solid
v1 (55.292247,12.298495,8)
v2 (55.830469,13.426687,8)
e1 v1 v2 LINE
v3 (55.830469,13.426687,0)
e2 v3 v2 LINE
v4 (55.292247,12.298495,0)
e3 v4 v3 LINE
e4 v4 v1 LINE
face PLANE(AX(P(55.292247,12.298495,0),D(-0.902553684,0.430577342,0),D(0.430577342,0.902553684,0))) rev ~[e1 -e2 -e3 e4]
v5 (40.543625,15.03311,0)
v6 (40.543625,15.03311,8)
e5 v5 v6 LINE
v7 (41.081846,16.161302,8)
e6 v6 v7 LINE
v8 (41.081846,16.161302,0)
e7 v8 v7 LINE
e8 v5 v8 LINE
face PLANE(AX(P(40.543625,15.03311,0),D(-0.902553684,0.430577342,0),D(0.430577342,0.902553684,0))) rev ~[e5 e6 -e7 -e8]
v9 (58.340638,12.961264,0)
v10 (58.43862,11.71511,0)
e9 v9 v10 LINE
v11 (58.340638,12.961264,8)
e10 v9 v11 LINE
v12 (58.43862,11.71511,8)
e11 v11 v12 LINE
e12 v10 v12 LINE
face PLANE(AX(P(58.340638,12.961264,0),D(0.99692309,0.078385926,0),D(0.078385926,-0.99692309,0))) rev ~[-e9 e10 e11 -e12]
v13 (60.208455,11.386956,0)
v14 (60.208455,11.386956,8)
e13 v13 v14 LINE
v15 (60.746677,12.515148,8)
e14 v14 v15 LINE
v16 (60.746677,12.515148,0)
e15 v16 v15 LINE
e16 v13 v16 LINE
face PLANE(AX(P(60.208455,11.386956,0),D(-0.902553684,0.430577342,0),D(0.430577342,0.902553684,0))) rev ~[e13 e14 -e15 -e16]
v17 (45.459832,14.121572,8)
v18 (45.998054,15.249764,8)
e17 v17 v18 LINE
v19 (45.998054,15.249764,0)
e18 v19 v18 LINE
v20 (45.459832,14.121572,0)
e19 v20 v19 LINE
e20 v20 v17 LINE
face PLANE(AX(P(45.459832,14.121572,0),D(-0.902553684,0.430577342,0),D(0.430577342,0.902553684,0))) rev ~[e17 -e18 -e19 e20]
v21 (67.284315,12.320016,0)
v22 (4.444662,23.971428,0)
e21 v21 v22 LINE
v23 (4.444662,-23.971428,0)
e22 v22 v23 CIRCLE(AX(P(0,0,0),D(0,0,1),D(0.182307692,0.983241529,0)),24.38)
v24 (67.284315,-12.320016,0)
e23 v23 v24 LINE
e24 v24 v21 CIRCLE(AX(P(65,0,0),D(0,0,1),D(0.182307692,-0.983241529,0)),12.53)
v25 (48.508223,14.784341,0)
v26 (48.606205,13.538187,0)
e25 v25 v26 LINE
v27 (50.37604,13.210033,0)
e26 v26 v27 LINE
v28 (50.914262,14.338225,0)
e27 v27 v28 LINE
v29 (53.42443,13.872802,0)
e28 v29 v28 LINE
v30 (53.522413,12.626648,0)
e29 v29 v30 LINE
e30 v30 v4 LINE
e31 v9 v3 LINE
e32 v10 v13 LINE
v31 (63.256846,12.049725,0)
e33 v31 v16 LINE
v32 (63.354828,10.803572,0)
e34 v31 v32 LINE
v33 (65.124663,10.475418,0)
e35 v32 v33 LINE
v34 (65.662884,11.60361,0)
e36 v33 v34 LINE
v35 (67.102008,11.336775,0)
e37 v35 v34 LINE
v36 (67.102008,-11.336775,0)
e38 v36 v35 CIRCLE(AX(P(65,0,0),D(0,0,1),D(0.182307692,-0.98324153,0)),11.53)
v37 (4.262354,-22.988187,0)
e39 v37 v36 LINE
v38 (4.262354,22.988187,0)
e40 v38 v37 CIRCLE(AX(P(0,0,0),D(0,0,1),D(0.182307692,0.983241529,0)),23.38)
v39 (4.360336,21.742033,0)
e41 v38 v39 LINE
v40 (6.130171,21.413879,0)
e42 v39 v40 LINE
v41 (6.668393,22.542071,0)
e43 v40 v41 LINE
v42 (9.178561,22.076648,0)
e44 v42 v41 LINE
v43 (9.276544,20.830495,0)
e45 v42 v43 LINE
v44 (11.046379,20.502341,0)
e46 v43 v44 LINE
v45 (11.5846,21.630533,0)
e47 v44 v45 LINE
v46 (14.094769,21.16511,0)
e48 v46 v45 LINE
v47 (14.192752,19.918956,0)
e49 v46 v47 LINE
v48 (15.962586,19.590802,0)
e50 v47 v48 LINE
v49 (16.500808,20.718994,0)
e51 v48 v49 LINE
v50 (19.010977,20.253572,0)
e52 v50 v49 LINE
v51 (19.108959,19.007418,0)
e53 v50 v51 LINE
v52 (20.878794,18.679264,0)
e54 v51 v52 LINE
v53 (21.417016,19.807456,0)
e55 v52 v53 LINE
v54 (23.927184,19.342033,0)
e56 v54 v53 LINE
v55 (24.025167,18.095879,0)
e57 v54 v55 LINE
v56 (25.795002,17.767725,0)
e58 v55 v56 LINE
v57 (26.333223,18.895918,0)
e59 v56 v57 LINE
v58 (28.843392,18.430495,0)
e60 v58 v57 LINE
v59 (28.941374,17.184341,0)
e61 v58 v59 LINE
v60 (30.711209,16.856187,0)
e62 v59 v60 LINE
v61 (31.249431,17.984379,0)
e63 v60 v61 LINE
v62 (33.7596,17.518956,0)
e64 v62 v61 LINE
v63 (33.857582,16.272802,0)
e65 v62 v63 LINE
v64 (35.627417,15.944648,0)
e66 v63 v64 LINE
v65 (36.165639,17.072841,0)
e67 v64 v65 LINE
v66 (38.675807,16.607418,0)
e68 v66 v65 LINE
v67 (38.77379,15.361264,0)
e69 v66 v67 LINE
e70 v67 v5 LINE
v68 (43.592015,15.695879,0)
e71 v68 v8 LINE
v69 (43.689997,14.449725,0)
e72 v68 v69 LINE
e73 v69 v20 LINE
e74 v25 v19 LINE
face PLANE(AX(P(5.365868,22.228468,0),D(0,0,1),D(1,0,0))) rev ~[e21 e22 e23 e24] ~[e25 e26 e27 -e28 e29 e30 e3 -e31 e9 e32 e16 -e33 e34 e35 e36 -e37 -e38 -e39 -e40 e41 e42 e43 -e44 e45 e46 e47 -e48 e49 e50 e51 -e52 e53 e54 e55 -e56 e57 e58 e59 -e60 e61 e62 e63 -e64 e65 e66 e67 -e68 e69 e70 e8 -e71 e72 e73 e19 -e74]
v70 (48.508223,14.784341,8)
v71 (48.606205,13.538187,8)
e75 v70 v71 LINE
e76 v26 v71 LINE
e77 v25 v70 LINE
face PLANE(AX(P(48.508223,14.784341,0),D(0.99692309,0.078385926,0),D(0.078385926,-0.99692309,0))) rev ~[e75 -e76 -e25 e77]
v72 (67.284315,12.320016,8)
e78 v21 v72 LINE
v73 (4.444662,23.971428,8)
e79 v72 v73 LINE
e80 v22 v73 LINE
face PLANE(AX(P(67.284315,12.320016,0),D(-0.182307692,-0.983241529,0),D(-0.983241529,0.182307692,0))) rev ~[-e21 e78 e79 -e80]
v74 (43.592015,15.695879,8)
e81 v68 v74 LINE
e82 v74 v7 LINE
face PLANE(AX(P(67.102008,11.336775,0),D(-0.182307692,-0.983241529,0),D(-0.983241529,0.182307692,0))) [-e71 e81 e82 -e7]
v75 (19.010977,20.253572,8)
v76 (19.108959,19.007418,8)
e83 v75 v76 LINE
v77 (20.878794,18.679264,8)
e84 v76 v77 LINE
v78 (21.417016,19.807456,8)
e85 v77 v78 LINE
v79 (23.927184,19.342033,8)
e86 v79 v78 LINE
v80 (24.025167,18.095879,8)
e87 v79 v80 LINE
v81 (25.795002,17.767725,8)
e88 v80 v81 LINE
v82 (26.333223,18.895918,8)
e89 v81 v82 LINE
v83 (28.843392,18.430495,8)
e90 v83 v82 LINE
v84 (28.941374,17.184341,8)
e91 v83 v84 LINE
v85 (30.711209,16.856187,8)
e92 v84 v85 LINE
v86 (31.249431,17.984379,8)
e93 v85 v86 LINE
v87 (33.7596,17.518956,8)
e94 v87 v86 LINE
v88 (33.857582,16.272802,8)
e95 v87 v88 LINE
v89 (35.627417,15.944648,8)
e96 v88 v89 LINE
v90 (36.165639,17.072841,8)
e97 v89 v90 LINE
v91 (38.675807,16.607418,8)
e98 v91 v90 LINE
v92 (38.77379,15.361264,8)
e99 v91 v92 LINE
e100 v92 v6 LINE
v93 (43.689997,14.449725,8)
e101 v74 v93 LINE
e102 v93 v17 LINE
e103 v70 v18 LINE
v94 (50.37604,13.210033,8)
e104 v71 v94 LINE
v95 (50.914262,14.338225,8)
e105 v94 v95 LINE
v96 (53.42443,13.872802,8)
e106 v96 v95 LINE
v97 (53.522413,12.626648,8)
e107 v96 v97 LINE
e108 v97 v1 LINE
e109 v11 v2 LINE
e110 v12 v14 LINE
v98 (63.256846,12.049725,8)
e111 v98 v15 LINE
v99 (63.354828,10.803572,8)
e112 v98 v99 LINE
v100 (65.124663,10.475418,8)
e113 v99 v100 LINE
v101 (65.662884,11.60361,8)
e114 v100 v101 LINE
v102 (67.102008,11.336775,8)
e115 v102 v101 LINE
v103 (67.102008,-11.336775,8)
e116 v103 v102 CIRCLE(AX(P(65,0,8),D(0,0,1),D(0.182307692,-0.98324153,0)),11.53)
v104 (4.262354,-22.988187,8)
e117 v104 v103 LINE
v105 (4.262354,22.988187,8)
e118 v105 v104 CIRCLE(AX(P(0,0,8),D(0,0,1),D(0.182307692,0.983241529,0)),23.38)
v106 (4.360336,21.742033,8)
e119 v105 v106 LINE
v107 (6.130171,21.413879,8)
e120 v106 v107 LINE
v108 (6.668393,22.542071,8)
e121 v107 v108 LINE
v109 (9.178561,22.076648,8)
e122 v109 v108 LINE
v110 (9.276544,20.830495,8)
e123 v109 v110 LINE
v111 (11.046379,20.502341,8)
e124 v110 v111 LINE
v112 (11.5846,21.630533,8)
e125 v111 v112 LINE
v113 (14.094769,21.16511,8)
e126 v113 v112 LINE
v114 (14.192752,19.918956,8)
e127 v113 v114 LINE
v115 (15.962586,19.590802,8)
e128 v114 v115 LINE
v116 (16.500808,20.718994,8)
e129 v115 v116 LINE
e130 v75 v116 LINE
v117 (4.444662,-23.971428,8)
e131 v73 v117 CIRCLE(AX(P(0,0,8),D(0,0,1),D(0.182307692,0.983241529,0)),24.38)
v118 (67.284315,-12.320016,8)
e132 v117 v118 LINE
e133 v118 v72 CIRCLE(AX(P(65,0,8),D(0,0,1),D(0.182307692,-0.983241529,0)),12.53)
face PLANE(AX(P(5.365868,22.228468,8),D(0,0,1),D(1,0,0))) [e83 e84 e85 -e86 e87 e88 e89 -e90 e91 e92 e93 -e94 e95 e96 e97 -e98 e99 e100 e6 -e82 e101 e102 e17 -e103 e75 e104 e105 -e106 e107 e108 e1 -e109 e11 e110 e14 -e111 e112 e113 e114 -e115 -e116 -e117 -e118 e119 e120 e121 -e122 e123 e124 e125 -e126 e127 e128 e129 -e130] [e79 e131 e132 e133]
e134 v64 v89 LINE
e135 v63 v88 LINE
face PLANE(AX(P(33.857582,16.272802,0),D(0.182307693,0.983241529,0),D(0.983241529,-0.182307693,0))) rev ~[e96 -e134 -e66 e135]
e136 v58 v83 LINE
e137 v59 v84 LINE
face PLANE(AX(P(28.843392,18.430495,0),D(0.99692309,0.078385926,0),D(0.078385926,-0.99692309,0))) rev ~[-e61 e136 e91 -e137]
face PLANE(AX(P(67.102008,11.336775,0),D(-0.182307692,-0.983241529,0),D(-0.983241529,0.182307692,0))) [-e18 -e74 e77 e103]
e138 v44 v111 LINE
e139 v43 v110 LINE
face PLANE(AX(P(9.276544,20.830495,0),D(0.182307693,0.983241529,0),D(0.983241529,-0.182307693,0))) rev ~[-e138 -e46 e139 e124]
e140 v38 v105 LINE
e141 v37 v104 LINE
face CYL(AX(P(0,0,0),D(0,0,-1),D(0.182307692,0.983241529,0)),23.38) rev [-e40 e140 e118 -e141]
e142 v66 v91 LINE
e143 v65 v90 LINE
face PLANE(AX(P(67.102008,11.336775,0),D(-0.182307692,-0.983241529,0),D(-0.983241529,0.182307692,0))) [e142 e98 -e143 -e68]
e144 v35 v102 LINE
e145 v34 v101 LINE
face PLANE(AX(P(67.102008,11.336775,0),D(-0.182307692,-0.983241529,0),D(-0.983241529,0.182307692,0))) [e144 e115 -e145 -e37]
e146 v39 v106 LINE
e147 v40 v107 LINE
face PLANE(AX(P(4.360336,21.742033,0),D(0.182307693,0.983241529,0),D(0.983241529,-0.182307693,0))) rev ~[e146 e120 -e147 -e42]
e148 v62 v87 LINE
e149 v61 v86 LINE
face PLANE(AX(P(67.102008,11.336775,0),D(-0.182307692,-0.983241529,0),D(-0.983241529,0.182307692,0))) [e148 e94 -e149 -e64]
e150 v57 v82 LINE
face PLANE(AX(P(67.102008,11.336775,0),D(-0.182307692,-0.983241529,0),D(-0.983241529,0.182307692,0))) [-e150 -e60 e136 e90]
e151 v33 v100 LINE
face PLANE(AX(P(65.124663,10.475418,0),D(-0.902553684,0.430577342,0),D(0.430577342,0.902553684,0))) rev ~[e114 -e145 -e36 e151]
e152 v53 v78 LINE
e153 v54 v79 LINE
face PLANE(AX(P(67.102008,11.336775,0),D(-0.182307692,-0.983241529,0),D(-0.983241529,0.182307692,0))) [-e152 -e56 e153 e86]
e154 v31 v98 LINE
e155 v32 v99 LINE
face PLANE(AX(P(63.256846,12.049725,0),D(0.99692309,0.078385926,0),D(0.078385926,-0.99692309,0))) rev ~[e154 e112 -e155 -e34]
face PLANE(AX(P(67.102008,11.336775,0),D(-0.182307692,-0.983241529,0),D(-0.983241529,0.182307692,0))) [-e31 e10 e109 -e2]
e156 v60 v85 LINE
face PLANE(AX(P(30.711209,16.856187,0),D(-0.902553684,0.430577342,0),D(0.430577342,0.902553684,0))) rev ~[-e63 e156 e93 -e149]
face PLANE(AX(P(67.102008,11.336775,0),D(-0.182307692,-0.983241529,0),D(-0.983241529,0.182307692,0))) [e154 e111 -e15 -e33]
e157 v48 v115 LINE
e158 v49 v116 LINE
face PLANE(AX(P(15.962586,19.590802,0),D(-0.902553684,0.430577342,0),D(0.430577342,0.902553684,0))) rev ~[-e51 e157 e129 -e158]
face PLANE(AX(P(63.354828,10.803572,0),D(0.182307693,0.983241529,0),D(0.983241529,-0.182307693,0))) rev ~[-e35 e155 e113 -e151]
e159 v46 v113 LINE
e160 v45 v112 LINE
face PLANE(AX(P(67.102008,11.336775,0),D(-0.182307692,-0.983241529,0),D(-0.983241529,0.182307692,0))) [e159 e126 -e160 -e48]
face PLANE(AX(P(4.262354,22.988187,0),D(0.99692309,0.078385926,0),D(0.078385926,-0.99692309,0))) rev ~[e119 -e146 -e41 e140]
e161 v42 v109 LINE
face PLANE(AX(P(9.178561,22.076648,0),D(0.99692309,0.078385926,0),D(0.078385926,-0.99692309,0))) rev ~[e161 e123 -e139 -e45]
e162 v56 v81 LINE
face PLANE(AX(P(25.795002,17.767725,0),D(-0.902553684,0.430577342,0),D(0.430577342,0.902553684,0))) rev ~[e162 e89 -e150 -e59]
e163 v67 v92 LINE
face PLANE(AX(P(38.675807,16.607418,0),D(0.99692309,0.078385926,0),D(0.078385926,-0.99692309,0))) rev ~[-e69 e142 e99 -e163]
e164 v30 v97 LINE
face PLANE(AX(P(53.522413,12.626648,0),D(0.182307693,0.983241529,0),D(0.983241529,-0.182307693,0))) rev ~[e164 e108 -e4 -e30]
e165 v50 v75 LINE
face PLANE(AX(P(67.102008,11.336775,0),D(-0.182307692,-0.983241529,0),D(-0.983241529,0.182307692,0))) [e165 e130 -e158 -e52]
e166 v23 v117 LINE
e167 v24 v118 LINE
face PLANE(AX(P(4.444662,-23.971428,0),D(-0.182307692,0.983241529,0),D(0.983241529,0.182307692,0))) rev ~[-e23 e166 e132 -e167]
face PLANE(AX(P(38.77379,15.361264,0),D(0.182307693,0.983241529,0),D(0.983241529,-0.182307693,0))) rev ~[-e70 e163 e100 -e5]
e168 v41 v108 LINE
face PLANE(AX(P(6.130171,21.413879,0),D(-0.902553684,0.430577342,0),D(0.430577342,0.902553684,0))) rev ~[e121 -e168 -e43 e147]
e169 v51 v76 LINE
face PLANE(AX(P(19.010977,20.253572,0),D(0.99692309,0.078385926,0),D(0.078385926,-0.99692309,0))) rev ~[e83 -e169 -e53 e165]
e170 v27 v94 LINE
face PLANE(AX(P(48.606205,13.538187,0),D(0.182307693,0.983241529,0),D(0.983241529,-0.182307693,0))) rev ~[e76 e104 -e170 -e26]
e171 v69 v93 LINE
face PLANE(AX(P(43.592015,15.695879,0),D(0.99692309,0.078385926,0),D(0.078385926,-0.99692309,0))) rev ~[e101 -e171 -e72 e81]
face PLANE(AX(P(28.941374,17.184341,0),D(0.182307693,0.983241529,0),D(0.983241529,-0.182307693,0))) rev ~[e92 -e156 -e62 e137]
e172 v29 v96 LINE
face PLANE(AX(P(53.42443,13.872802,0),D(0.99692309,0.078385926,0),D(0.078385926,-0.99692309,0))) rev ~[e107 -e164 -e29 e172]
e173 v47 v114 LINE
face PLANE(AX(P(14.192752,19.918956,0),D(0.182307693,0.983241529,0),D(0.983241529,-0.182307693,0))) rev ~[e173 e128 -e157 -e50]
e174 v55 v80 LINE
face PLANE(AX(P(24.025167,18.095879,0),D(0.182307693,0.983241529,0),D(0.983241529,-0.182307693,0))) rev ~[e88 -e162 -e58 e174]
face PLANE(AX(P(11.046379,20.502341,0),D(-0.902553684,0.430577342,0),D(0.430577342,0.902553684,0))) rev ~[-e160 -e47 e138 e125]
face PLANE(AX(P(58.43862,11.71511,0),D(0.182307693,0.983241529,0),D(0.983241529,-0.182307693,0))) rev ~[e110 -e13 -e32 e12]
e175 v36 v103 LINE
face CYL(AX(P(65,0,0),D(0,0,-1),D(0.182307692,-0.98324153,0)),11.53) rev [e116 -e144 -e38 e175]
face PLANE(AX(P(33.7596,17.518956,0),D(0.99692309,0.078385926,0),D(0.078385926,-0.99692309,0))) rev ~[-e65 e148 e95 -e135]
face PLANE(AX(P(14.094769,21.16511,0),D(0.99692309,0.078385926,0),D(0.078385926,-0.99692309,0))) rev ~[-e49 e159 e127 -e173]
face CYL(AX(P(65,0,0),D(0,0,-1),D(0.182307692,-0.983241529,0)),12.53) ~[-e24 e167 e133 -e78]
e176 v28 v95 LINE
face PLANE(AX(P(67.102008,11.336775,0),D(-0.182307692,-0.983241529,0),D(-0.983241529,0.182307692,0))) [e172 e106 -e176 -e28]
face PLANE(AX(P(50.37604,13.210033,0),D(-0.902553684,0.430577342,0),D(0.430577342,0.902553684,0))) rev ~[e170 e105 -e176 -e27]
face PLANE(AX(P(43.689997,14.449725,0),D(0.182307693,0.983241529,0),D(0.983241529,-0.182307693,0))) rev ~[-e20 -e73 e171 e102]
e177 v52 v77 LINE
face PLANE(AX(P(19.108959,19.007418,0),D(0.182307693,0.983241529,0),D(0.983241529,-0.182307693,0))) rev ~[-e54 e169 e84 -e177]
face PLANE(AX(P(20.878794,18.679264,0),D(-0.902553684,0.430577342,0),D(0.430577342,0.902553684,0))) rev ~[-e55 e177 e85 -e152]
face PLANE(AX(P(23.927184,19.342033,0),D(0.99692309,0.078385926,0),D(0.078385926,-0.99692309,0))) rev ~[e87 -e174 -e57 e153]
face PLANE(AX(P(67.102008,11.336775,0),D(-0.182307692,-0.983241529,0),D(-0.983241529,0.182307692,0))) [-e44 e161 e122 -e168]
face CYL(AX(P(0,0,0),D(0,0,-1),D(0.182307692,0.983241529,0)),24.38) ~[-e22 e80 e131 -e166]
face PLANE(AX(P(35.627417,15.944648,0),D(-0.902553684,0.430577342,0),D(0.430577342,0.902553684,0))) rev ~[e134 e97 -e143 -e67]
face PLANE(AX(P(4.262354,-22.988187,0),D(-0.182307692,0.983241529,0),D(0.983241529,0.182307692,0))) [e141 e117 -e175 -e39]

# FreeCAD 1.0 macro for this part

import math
import FreeCAD as App
import Part
import Sketcher
Q = App.Units.Quantity


def add_polygon(sketch, points):
    """Adds a closed chain of lines whose ends are joined by coincident constraints."""
    first, n = sketch.GeometryCount, len(points)
    for a, b in zip(points, points[1:] + points[:1]):
        sketch.addGeometry(Part.LineSegment(App.Vector(*a, 0), App.Vector(*b, 0)), False)
    for i in range(n):
        sketch.addConstraint(Sketcher.Constraint("Coincident", first + i, 2, first + (i + 1) % n, 1))

doc = App.newDocument("Part")
params = doc.addObject("Spreadsheet::Sheet", "Params")
for row, (alias, value) in enumerate([
    ("sketch1_radius", "24.38 mm"),
    ("sketch1_radius2", "12.53 mm"),
    ("sketch1_radius3", "23.38 mm"),
    ("pad1_length", "8 mm"),
    ("sketch2_length", "1.8 mm"),
    ("sketch2_length2", "1.25 mm"),
    ("pad2_length", "8 mm"),
    ("linearpattern_pitch", "5 mm"),
], start=1):
    params.set(f"A{row}", alias)
    params.set(f"B{row}", "=" + value)
    params.setAlias(f"B{row}", alias)

body = doc.addObject("PartDesign::Body", "Body")

sketch1 = body.newObject("Sketcher::SketchObject", "Sketch")
sketch1.AttachmentSupport = (doc.getObject("XY_Plane"), [""])
sketch1.MapMode = "FlatFace"
sketch1.addGeometry(Part.LineSegment(App.Vector(67, 12, 0), App.Vector(4, 24, 0)), False)
sketch1.addGeometry(Part.ArcOfCircle(Part.Circle(App.Vector(0, 0, 0), App.Vector(0, 0, 1), 24), math.radians(79), math.radians(281)), False)
sketch1.addGeometry(Part.LineSegment(App.Vector(4, -24, 0), App.Vector(67, -12, 0)), False)
sketch1.addGeometry(Part.ArcOfCircle(Part.Circle(App.Vector(65, 0, 0), App.Vector(0, 0, 1), 13), math.radians(-79), math.radians(79)), False)
sketch1.addGeometry(Part.LineSegment(App.Vector(67, -11, 0), App.Vector(4, -23, 0)), False)
sketch1.addGeometry(Part.ArcOfCircle(Part.Circle(App.Vector(0, 0, 0), App.Vector(0, 0, 1), 23), math.radians(79), math.radians(281)), False)
sketch1.addGeometry(Part.LineSegment(App.Vector(4, 23, 0), App.Vector(67, 11, 0)), False)
sketch1.addGeometry(Part.ArcOfCircle(Part.Circle(App.Vector(65, 0, 0), App.Vector(0, 0, 1), 12), math.radians(-79), math.radians(79)), False)
sketch1.addConstraint(Sketcher.Constraint("Tangent", 0, 2, 1, 1))
sketch1.addConstraint(Sketcher.Constraint("Tangent", 1, 2, 2, 1))
sketch1.addConstraint(Sketcher.Constraint("Tangent", 2, 2, 3, 1))
sketch1.addConstraint(Sketcher.Constraint("Tangent", 3, 2, 0, 1))
sketch1.addConstraint(Sketcher.Constraint("Tangent", 4, 2, 5, 2))
sketch1.addConstraint(Sketcher.Constraint("Tangent", 5, 1, 6, 1))
sketch1.addConstraint(Sketcher.Constraint("Tangent", 6, 2, 7, 2))
sketch1.addConstraint(Sketcher.Constraint("Tangent", 7, 1, 4, 1))
sketch1.addConstraint(Sketcher.Constraint("Coincident", 1, 3, -1, 1))
sketch1.addConstraint(Sketcher.Constraint("Coincident", 5, 3, -1, 1))
sketch1.addConstraint(Sketcher.Constraint("Coincident", 7, 3, 3, 3))
sketch1.addConstraint(Sketcher.Constraint("PointOnObject", 3, 3, -1))
sketch1.addConstraint(Sketcher.Constraint("Parallel", 2, 4))
sketch1.addConstraint(Sketcher.Constraint("Radius", 1, Q("24.38 mm")))
sketch1.addConstraint(Sketcher.Constraint("Radius", 3, Q("12.53 mm")))
sketch1.addConstraint(Sketcher.Constraint("Radius", 5, Q("23.38 mm")))
sketch1.addConstraint(Sketcher.Constraint("DistanceX", -1, 1, 3, 3, Q("65 mm")))
sketch1.setExpression("Constraints[13]", "Params.sketch1_radius")
sketch1.setExpression("Constraints[14]", "Params.sketch1_radius2")
sketch1.setExpression("Constraints[15]", "Params.sketch1_radius3")
pad1 = body.newObject("PartDesign::Pad", "Pad")
pad1.Profile = sketch1
pad1.setExpression("Length", "Params.pad1_length")

sketch2 = body.newObject("Sketcher::SketchObject", "Sketch001")
sketch2.AttachmentSupport = (doc.getObject("XY_Plane"), [""])
sketch2.MapMode = "FlatFace"
add_polygon(sketch2, [(4.3, 23), (4.4, 21.7), (6.1, 21.4), (6.7, 22.5)])
sketch2.addConstraint(Sketcher.Constraint("Parallel", 1, 3))
sketch2.addConstraint(Sketcher.Constraint("Equal", 0, 2))
sketch2.addConstraint(Sketcher.Constraint("Distance", 1, Q("1.8 mm")))
sketch2.addConstraint(Sketcher.Constraint("Distance", 0, Q("1.25 mm")))
sketch2.addConstraint(Sketcher.Constraint("DistanceX", -1, 1, 1, 2, Q("6.130171 mm")))
sketch2.addConstraint(Sketcher.Constraint("DistanceY", -1, 1, 1, 2, Q("21.413879 mm")))
sketch2.addConstraint(Sketcher.Constraint("DistanceY", -1, 1, 2, 2, Q("22.542071 mm")))
sketch2.addConstraint(Sketcher.Constraint("DistanceY", 0, 2, 2, 2, Q("0.800038 mm")))
sketch2.setExpression("Constraints[6]", "Params.sketch2_length")
sketch2.setExpression("Constraints[7]", "Params.sketch2_length2")
pad2 = body.newObject("PartDesign::Pad", "Pad001")
pad2.Profile = sketch2
pad2.setExpression("Length", "Params.pad2_length")
doc.recompute()

datumline = body.newObject("PartDesign::Line", "DatumLine")
datumline.Placement = App.Placement(App.Vector(0, 0, 0), App.Rotation(App.Vector(0, 0, 1), App.Vector(0.98324153, -0.182307692, 0)))
linearpattern = body.newObject("PartDesign::LinearPattern", "LinearPattern")
linearpattern.Originals = [pad2]
linearpattern.Direction = (datumline, [""])
linearpattern.Mode = "offset"
linearpattern.setExpression("Offset", "Params.linearpattern_pitch")
linearpattern.Occurrences = 13
body.Tip = linearpattern

doc.recompute()
